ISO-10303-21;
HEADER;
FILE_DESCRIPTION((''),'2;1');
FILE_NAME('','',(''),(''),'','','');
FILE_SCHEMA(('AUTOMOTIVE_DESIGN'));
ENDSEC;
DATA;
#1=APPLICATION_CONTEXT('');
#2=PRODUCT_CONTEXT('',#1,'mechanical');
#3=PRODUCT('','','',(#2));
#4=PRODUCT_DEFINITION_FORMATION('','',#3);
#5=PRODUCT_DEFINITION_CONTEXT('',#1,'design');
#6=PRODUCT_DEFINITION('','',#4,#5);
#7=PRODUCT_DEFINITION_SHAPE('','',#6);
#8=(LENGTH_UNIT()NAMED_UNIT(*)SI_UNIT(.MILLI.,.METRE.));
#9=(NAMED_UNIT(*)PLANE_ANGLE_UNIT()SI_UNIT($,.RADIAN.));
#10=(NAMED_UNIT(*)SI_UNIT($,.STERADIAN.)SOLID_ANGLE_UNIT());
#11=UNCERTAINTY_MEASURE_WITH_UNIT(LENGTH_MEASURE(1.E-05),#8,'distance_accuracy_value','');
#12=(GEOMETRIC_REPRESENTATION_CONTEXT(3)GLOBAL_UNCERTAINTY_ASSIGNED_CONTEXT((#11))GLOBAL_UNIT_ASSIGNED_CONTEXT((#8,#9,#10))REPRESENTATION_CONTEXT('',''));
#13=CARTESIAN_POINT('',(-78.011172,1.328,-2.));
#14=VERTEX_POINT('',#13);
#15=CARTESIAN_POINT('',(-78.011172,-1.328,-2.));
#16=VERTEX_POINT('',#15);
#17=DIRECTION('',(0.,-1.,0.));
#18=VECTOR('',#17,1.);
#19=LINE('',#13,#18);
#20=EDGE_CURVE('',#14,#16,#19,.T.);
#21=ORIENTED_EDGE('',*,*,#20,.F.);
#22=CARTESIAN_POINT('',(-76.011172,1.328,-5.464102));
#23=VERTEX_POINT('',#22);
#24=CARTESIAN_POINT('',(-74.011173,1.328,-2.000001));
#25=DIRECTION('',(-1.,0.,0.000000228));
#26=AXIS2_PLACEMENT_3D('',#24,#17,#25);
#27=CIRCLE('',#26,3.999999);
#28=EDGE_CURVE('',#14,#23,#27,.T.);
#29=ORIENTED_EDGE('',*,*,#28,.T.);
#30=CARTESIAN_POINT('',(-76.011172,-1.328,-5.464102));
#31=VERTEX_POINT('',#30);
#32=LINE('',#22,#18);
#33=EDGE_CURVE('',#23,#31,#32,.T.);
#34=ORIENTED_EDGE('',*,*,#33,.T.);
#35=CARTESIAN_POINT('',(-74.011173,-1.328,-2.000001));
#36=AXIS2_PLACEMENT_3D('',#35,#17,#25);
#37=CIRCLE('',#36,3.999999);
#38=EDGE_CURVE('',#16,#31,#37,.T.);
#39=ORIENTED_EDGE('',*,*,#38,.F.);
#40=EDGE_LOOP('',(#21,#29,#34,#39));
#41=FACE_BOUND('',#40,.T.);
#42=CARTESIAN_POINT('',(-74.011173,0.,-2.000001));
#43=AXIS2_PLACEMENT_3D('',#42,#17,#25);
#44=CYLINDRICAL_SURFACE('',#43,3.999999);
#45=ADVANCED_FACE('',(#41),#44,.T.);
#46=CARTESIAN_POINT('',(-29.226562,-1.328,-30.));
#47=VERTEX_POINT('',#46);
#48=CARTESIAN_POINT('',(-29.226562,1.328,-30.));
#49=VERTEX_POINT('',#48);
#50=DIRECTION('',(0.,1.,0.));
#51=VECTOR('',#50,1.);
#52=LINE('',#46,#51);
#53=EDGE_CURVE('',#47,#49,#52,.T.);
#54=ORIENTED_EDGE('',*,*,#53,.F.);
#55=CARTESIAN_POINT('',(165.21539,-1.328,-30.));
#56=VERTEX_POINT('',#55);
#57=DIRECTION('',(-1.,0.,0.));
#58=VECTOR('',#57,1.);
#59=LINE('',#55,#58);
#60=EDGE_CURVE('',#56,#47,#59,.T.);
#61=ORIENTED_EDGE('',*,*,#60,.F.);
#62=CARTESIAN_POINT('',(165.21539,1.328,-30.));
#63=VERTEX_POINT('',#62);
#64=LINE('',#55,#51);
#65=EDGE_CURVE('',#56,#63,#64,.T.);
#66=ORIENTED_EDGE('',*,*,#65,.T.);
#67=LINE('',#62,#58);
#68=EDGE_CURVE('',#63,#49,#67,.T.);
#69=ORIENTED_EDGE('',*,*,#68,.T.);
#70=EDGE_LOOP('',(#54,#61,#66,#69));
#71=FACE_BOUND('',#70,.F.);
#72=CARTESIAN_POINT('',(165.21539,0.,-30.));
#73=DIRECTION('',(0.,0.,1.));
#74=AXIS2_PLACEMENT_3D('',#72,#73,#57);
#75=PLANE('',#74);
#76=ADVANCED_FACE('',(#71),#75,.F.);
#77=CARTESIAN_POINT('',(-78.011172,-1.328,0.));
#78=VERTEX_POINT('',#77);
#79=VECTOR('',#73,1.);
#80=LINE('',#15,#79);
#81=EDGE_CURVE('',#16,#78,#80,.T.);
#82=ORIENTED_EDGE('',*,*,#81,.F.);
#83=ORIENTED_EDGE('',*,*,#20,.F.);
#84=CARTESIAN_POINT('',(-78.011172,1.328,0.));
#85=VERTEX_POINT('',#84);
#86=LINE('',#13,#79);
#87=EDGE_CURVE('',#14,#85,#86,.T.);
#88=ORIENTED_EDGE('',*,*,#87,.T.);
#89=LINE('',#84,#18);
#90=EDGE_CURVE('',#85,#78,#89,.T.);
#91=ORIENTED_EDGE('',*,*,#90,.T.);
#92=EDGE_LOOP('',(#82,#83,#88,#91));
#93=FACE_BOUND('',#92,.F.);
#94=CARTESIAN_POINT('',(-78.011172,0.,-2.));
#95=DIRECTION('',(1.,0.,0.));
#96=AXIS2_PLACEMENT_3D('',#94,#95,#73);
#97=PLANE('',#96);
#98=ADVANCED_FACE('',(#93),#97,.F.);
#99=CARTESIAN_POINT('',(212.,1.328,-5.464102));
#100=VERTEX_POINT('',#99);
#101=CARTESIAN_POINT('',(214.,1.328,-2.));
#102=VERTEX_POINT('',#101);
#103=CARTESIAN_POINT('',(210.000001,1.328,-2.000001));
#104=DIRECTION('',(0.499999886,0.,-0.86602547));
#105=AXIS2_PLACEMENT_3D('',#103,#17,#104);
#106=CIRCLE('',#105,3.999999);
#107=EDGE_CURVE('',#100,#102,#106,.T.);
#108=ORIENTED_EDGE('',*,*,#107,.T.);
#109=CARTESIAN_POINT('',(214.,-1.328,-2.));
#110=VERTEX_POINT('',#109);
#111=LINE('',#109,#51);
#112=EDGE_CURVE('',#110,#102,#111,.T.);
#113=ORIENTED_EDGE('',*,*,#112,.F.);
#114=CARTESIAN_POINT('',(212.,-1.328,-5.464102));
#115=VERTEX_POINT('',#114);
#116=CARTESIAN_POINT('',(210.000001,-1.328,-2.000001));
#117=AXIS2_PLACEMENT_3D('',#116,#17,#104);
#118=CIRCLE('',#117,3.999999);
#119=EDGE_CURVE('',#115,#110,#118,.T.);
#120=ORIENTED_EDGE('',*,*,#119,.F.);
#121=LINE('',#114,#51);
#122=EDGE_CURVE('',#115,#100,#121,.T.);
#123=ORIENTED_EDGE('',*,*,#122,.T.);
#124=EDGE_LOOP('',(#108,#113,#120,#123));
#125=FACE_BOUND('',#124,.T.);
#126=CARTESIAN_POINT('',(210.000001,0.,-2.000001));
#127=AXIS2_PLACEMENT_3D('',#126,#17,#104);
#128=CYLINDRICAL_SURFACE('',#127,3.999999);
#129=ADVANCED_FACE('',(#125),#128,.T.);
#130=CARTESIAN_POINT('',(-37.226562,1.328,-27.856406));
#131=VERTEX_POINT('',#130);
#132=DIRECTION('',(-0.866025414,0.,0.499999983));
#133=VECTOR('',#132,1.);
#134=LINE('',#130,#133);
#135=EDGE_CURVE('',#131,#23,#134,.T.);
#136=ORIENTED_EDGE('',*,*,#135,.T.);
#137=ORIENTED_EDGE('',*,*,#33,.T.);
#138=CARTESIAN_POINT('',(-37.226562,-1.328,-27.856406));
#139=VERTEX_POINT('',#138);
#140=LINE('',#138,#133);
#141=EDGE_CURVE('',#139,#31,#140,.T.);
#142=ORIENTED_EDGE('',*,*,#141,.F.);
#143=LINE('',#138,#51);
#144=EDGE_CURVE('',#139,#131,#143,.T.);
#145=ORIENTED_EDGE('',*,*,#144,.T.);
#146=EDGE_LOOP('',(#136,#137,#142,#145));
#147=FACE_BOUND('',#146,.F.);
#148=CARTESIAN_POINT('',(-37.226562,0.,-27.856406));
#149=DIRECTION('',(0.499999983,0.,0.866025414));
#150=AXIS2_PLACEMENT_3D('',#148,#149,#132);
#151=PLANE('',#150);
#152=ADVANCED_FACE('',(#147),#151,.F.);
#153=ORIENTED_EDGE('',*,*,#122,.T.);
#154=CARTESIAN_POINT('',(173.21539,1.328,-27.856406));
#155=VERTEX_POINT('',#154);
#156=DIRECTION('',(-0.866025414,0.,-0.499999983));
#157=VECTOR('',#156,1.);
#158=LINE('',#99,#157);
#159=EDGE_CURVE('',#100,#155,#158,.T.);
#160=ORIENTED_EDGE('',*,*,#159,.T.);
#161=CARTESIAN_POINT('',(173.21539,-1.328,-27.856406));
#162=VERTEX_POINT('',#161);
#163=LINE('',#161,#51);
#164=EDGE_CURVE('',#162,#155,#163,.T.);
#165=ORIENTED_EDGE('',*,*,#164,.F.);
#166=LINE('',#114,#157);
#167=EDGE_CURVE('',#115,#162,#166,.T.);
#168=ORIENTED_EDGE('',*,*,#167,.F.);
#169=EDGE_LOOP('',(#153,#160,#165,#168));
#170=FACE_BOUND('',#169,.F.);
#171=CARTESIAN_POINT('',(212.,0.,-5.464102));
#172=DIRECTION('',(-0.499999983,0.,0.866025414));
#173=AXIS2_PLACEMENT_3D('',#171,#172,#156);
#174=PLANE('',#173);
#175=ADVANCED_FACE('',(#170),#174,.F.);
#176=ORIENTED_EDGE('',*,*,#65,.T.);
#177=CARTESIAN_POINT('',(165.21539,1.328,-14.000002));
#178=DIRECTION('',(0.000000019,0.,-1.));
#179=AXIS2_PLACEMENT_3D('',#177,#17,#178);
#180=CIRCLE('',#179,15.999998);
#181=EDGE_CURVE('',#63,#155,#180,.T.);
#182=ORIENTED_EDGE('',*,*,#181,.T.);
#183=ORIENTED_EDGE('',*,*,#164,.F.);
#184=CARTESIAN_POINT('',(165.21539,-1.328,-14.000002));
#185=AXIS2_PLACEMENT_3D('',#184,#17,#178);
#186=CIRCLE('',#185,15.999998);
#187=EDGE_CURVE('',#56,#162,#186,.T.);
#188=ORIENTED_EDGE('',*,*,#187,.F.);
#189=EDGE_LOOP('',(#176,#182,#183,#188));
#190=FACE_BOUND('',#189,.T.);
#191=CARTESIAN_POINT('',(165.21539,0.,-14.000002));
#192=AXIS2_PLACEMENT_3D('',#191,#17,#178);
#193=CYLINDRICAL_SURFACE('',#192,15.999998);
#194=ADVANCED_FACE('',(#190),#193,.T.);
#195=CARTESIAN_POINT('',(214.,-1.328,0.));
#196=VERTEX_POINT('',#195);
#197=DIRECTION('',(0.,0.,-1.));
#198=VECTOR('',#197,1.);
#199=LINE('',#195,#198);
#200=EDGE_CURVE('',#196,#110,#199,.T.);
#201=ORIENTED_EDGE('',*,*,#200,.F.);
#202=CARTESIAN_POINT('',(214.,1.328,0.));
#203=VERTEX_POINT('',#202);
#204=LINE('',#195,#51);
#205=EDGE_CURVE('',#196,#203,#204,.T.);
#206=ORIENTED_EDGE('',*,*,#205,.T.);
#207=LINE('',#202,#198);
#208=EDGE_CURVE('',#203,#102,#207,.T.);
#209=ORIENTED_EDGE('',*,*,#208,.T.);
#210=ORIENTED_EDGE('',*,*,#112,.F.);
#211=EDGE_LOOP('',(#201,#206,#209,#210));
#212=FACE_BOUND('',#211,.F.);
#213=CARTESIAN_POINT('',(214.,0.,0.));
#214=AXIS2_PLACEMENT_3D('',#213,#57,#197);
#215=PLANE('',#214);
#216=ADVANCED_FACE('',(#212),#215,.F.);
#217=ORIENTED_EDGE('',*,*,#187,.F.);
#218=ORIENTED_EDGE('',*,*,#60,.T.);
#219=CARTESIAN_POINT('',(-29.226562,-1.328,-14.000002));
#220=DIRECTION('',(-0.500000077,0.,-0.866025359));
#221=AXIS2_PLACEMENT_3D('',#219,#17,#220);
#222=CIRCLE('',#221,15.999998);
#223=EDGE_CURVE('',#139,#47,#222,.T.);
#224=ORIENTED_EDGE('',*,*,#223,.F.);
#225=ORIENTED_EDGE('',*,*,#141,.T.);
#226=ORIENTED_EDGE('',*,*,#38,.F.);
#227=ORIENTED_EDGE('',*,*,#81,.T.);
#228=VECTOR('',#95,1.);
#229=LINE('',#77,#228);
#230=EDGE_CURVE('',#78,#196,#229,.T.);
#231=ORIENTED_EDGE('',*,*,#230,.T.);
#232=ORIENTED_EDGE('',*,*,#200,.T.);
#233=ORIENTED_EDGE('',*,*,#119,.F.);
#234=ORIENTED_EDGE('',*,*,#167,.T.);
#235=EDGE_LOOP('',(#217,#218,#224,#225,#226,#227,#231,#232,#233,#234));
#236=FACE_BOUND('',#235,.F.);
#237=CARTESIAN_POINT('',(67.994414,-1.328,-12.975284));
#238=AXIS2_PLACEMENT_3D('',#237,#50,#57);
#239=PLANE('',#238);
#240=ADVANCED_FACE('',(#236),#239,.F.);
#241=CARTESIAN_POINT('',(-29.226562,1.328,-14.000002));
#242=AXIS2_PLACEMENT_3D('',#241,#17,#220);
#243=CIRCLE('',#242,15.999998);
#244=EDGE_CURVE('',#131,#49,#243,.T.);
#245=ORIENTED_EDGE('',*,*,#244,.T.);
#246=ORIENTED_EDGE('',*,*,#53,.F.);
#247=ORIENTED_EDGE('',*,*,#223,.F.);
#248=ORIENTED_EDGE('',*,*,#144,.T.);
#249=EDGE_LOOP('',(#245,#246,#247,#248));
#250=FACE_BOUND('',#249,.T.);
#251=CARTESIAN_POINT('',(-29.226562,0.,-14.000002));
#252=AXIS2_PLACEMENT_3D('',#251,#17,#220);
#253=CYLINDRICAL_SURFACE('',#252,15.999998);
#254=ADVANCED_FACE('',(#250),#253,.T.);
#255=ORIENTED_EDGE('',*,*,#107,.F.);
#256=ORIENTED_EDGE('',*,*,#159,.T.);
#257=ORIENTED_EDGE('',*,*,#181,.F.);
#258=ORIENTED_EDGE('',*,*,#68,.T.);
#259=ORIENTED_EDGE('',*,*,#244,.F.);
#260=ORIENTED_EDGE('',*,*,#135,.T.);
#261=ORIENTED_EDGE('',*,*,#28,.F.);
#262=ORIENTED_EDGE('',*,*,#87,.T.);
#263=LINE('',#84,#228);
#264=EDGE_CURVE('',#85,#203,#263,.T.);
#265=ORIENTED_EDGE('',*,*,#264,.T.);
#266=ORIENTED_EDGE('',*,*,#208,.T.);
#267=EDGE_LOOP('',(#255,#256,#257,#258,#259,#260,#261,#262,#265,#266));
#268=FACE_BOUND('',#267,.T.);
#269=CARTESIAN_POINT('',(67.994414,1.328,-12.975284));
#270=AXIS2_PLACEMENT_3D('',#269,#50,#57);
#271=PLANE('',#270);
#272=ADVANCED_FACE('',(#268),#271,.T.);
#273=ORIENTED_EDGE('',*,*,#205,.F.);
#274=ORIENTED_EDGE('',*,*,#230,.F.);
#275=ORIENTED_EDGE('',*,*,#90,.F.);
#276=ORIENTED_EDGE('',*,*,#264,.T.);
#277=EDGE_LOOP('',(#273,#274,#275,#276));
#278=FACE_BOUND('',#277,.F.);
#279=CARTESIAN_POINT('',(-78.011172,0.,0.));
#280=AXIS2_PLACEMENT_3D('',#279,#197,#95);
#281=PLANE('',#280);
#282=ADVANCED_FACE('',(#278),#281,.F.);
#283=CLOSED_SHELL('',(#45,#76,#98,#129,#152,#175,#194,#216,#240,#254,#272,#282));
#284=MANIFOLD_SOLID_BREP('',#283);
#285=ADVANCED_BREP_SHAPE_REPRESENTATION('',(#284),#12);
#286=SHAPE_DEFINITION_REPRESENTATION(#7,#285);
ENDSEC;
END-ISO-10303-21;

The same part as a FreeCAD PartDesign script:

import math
import FreeCAD as App
import Part
import Sketcher

V = App.Vector
Q = App.Units.Quantity

doc = App.newDocument("Part")
body = doc.addObject("PartDesign::Body", "Body")

# Sketch on XZ plane
sketch1 = body.newObject("Sketcher::SketchObject", "Sketch")
sketch1.AttachmentSupport = (doc.getObject("XZ_Plane"), [""])
sketch1.MapMode = "FlatFace"
sketch1.addGeometry(Part.LineSegment(V(214, 0, 0), V(-78, 0, 0)), False)
sketch1.addGeometry(Part.LineSegment(V(-78, 0, 0), V(-78, -2, 0)), False)
sketch1.addGeometry(Part.ArcOfCircle(Part.Circle(V(-74, -2, 0), V(0, 0, 1), 4), math.radians(180), math.radians(240)), False)
sketch1.addGeometry(Part.LineSegment(V(-76, -5.5, 0), V(-37.2, -27.9, 0)), False)
sketch1.addGeometry(Part.ArcOfCircle(Part.Circle(V(-29.2, -14, 0), V(0, 0, 1), 16), math.radians(-120), math.radians(-90)), False)
sketch1.addGeometry(Part.LineSegment(V(-29.2, -30, 0), V(165.2, -30, 0)), False)
sketch1.addGeometry(Part.ArcOfCircle(Part.Circle(V(165.2, -14, 0), V(0, 0, 1), 16), math.radians(-90), math.radians(-60)), False)
sketch1.addGeometry(Part.LineSegment(V(173.2, -27.9, 0), V(212, -5.5, 0)), False)
sketch1.addGeometry(Part.ArcOfCircle(Part.Circle(V(210, -2, 0), V(0, 0, 1), 4), math.radians(-60), math.radians(0)), False)
sketch1.addGeometry(Part.LineSegment(V(214, -2, 0), V(214, 0, 0)), False)
sketch1.addConstraint(Sketcher.Constraint("Coincident", 0, 2, 1, 1))
sketch1.addConstraint(Sketcher.Constraint("Tangent", 1, 2, 2, 1))
sketch1.addConstraint(Sketcher.Constraint("Tangent", 2, 2, 3, 1))
sketch1.addConstraint(Sketcher.Constraint("Tangent", 3, 2, 4, 1))
sketch1.addConstraint(Sketcher.Constraint("Tangent", 4, 2, 5, 1))
sketch1.addConstraint(Sketcher.Constraint("Tangent", 5, 2, 6, 1))
sketch1.addConstraint(Sketcher.Constraint("Tangent", 6, 2, 7, 1))
sketch1.addConstraint(Sketcher.Constraint("Tangent", 7, 2, 8, 1))
sketch1.addConstraint(Sketcher.Constraint("Tangent", 8, 2, 9, 1))
sketch1.addConstraint(Sketcher.Constraint("Coincident", 9, 2, 0, 1))
sketch1.addConstraint(Sketcher.Constraint("Horizontal", 0))
sketch1.addConstraint(Sketcher.Constraint("Vertical", 1))
sketch1.addConstraint(Sketcher.Constraint("Horizontal", 5))
sketch1.addConstraint(Sketcher.Constraint("Vertical", 9))
sketch1.addConstraint(Sketcher.Constraint("Equal", 4, 6))
sketch1.addConstraint(Sketcher.Constraint("Equal", 2, 8))
sketch1.addConstraint(Sketcher.Constraint("PointOnObject", 0, 2, -1))
sketch1.addConstraint(Sketcher.Constraint("Horizontal", 2, 3, 8, 3))
sketch1.addConstraint(Sketcher.Constraint("Horizontal", 3, 2, 6, 2))
sketch1.addConstraint(Sketcher.Constraint("Radius", 2, Q("3.999999 mm")))
sketch1.addConstraint(Sketcher.Constraint("Radius", 4, Q("15.999998 mm")))
sketch1.addConstraint(Sketcher.Constraint("DistanceY", 1, 2, 1, 1, Q("2 mm")))
sketch1.addConstraint(Sketcher.Constraint("Angle", 3, Q("-29.999999 deg")))
sketch1.addConstraint(Sketcher.Constraint("DistanceY", 4, 3, -1, 1, Q("14.000002 mm")))
sketch1.addConstraint(Sketcher.Constraint("DistanceX", -1, 1, 8, 3, Q("210.000001 mm")))
sketch1.addConstraint(Sketcher.Constraint("DistanceX", 0, 2, 0, 1, Q("292.011172 mm")))
pad1 = body.newObject("PartDesign::Pad", "Pad")
pad1.Profile = sketch1
pad1.Length = 2.656
pad1.Midplane = True

doc.recompute()
